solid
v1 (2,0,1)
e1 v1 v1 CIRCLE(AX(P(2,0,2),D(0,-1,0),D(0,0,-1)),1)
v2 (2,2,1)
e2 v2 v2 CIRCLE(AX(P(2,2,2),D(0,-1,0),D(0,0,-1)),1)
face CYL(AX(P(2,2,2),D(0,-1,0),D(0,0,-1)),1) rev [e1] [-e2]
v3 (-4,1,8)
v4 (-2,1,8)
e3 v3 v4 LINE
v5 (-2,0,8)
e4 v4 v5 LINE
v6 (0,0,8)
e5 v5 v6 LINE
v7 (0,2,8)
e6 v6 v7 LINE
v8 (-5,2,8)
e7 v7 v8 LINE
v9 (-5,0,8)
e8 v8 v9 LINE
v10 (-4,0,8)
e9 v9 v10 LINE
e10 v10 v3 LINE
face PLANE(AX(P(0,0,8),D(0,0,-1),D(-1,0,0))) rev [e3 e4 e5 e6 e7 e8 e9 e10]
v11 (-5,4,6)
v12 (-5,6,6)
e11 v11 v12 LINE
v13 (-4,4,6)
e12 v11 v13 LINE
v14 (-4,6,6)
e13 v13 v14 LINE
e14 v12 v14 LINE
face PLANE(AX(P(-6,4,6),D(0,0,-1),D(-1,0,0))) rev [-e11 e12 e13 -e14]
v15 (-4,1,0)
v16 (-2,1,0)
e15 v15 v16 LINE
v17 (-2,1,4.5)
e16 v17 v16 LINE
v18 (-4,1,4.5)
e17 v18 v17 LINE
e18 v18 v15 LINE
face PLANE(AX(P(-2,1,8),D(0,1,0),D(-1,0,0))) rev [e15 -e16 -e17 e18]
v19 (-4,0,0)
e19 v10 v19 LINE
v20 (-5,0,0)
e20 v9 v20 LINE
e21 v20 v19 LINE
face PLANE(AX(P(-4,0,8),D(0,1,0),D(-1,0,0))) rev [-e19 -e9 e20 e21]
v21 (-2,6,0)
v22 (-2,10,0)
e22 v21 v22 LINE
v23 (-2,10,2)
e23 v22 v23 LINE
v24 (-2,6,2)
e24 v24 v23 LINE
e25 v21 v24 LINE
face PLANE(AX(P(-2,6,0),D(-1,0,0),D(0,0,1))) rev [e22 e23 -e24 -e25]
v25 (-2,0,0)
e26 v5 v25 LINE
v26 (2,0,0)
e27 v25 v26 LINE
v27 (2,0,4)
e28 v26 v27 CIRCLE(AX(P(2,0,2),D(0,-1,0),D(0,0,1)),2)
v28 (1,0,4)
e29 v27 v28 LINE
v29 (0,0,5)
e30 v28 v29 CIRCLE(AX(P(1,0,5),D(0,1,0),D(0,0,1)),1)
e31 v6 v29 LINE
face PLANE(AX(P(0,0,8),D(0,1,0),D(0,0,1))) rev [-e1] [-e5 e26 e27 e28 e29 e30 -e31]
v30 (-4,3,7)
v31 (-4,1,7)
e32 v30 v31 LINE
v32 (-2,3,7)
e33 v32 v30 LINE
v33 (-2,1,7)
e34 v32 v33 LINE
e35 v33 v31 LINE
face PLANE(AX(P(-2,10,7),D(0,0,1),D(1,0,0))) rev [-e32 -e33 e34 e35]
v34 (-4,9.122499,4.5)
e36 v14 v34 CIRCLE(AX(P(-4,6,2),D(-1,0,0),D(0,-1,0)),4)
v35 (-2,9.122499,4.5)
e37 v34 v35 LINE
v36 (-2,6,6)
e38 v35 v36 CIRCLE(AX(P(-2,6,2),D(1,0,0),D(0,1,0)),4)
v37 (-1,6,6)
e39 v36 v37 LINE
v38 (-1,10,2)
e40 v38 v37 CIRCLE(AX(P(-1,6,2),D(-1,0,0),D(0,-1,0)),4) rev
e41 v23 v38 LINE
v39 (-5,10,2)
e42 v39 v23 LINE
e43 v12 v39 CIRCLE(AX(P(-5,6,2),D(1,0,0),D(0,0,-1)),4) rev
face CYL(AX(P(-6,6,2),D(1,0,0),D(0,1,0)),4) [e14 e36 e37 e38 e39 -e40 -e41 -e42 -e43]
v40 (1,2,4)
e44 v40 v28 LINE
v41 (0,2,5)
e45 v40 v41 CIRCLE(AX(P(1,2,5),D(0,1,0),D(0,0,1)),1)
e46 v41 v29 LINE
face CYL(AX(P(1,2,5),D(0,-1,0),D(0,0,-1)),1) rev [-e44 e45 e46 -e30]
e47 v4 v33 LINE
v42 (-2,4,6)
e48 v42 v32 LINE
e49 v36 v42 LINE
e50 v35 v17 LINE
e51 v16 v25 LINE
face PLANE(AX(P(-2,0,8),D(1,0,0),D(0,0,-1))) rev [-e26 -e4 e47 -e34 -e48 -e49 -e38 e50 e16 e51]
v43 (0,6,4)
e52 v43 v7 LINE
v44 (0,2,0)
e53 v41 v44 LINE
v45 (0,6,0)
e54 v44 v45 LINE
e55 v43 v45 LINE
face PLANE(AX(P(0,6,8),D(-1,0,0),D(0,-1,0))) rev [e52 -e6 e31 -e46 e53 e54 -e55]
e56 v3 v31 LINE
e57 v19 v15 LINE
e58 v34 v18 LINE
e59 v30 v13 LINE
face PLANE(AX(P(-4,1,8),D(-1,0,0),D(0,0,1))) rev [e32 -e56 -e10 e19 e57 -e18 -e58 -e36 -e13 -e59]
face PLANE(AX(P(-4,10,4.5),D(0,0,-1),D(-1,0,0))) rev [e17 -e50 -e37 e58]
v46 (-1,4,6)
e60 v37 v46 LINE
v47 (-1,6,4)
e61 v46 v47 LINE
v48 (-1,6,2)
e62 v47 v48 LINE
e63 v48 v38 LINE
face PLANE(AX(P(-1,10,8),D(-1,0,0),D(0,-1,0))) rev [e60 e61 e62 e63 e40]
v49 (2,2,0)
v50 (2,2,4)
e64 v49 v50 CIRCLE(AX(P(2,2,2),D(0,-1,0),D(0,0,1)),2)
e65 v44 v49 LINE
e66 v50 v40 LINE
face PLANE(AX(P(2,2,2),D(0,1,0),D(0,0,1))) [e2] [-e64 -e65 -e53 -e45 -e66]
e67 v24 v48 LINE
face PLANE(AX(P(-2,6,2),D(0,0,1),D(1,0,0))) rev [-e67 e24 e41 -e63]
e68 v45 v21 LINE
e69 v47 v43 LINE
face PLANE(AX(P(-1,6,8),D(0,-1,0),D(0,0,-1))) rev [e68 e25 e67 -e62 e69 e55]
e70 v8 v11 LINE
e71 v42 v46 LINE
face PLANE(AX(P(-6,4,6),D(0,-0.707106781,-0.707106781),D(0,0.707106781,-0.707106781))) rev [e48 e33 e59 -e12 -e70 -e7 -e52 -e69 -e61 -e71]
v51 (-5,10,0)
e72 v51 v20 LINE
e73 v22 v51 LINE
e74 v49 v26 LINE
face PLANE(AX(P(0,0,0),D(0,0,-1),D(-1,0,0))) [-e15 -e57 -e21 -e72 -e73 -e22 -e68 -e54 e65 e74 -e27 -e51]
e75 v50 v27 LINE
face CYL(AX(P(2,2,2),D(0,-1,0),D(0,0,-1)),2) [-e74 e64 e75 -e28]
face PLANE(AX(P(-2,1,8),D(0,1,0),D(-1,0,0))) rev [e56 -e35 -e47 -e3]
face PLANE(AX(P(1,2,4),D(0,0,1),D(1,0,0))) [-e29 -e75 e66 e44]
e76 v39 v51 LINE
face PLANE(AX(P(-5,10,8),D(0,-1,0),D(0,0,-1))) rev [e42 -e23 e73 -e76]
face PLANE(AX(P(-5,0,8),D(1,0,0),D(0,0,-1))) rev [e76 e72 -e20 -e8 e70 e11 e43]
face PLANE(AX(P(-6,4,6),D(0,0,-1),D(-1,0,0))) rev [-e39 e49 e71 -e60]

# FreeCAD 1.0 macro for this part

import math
import FreeCAD as App
import Part
import Sketcher
Q = App.Units.Quantity


def add_polygon(sketch, points):
    """Adds a closed chain of lines whose ends are joined by coincident constraints."""
    first, n = sketch.GeometryCount, len(points)
    for a, b in zip(points, points[1:] + points[:1]):
        sketch.addGeometry(Part.LineSegment(App.Vector(*a, 0), App.Vector(*b, 0)), False)
    for i in range(n):
        sketch.addConstraint(Sketcher.Constraint("Coincident", first + i, 2, first + (i + 1) % n, 1))

doc = App.newDocument("Part")
params = doc.addObject("Spreadsheet::Sheet", "Params")
for row, (alias, value) in enumerate([
    ("sketch1_width", "2 mm"),
    ("sketch1_width2", "1 mm"),
    ("sketch1_height", "6 mm"),
    ("pad1_length", "8 mm"),
    ("sketch2_diameter", "2 mm"),
    ("sketch2_radius", "2 mm"),
    ("sketch2_width", "2 mm"),
    ("pad2_length", "2 mm"),
    ("sketch3_width", "1 mm"),
    ("sketch3_height", "6 mm"),
    ("pocket1_length", "4 mm"),
    ("sketch4_radius", "4 mm"),
    ("sketch4_width", "8 mm"),
    ("sketch4_width2", "2 mm"),
    ("sketch4_height", "6 mm"),
    ("pocket2_length", "10 mm"),
    ("sketch5_width", "2 mm"),
    ("pocket3_length", "1 mm"),
    ("sketch6_width", "2 mm"),
    ("sketch6_height", "2.5 mm"),
], start=1):
    params.set(f"A{row}", alias)
    params.set(f"B{row}", "=" + value)
    params.setAlias(f"B{row}", alias)

body = doc.addObject("PartDesign::Body", "Body")

sketch1 = body.newObject("Sketcher::SketchObject", "Sketch")
sketch1.AttachmentSupport = (doc.getObject("XY_Plane"), [""])
sketch1.MapMode = "FlatFace"
add_polygon(sketch1, [(-2, 0), (0, 0), (0, 6), (-1, 6), (-1, 10), (-5, 10), (-5, 0), (-4, 0), (-4, 1), (-2, 1)])
sketch1.addConstraint([
    Sketcher.Constraint("Horizontal", 0),
    Sketcher.Constraint("Vertical", 1),
    Sketcher.Constraint("Horizontal", 2),
    Sketcher.Constraint("Vertical", 3),
    Sketcher.Constraint("Horizontal", 4),
    Sketcher.Constraint("Vertical", 5),
    Sketcher.Constraint("Horizontal", 6),
    Sketcher.Constraint("Vertical", 7),
    Sketcher.Constraint("Horizontal", 8),
    Sketcher.Constraint("Vertical", 9),
    Sketcher.Constraint("Coincident", 0, 2, -1, 1),
    Sketcher.Constraint("PointOnObject", 5, 2, -1),
    Sketcher.Constraint("Equal", 2, 6),
    Sketcher.Constraint("Equal", 0, 8),
    Sketcher.Constraint("Equal", 4, 3),
    Sketcher.Constraint("Equal", 6, 7),
    Sketcher.Constraint("DistanceX", 0, 1, 0, 2, Q("2 mm")),
    Sketcher.Constraint("DistanceX", 2, 2, 2, 1, Q("1 mm")),
    Sketcher.Constraint("DistanceY", 1, 1, 1, 2, Q("6 mm")),
])
sketch1.setExpression("Constraints[26]", "Params.sketch1_width")
sketch1.setExpression("Constraints[27]", "Params.sketch1_width2")
sketch1.setExpression("Constraints[28]", "Params.sketch1_height")
pad1 = body.newObject("PartDesign::Pad", "Pad")
pad1.Profile = sketch1
pad1.setExpression("Length", "Params.pad1_length")

sketch2 = body.newObject("Sketcher::SketchObject", "Sketch001")
sketch2.AttachmentSupport = (doc.getObject("XZ_Plane"), [""])
sketch2.MapMode = "FlatFace"
sketch2.addGeometry([
    Part.LineSegment(App.Vector(0, 0, 0), App.Vector(2, 0, 0)),
    Part.ArcOfCircle(Part.Circle(App.Vector(2, 2, 0), App.Vector(0, 0, 1), 2), math.radians(-90), math.radians(90)),
    Part.LineSegment(App.Vector(2, 4, 0), App.Vector(1, 4, 0)),
    Part.ArcOfCircle(Part.Circle(App.Vector(1, 5, 0), App.Vector(0, 0, 1), 1), math.radians(-180), math.radians(-90)),
    Part.LineSegment(App.Vector(0, 5, 0), App.Vector(0, 0, 0)),
    Part.Circle(App.Vector(2, 2, 0), App.Vector(0, 0, 1), 1),
], False)
sketch2.addConstraint([
    Sketcher.Constraint("Tangent", 0, 2, 1, 1),
    Sketcher.Constraint("Tangent", 1, 2, 2, 1),
    Sketcher.Constraint("Tangent", 2, 2, 3, 2),
    Sketcher.Constraint("Tangent", 3, 1, 4, 1),
    Sketcher.Constraint("Coincident", 4, 2, 0, 1),
    Sketcher.Constraint("Horizontal", 0),
    Sketcher.Constraint("Horizontal", 2),
    Sketcher.Constraint("Vertical", 4),
    Sketcher.Constraint("Coincident", 4, 2, -1, 1),
    Sketcher.Constraint("Coincident", 5, 3, 1, 3),
    Sketcher.Constraint("Equal", 3, 5),
    Sketcher.Constraint("Diameter", 5, Q("2 mm")),
    Sketcher.Constraint("Radius", 1, Q("2 mm")),
    Sketcher.Constraint("DistanceX", 0, 1, 0, 2, Q("2 mm")),
])
sketch2.setExpression("Constraints[11]", "Params.sketch2_diameter")
sketch2.setExpression("Constraints[12]", "Params.sketch2_radius")
sketch2.setExpression("Constraints[13]", "Params.sketch2_width")
pad2 = body.newObject("PartDesign::Pad", "Pad001")
pad2.Profile = sketch2
pad2.setExpression("Length", "Params.pad2_length")
pad2.Reversed = True

sketch3 = body.newObject("Sketcher::SketchObject", "Sketch002")
sketch3.AttachmentSupport = (doc.getObject("XZ_Plane"), [""])
sketch3.MapMode = "FlatFace"
sketch3.AttachmentOffset = App.Placement(App.Vector(0, 0, -10), App.Rotation())
add_polygon(sketch3, [(-2, 0), (-2, 2), (-1, 2), (-1, 8), (0, 8), (0, 0)])
sketch3.addConstraint([
    Sketcher.Constraint("Vertical", 0),
    Sketcher.Constraint("Horizontal", 1),
    Sketcher.Constraint("Vertical", 2),
    Sketcher.Constraint("Horizontal", 3),
    Sketcher.Constraint("Vertical", 4),
    Sketcher.Constraint("Horizontal", 5),
    Sketcher.Constraint("Coincident", 4, 2, -1, 1),
    Sketcher.Constraint("Equal", 1, 3),
    Sketcher.Constraint("Equal", 5, 0),
    Sketcher.Constraint("DistanceX", 1, 1, 1, 2, Q("1 mm")),
    Sketcher.Constraint("DistanceY", 2, 1, 2, 2, Q("6 mm")),
])
sketch3.setExpression("Constraints[15]", "Params.sketch3_width")
sketch3.setExpression("Constraints[16]", "Params.sketch3_height")
pocket1 = body.newObject("PartDesign::Pocket", "Pocket")
pocket1.Profile = sketch3
pocket1.setExpression("Length", "Params.pocket1_length")
pocket1.Reversed = True

sketch4 = body.newObject("Sketcher::SketchObject", "Sketch003")
sketch4.AttachmentSupport = (doc.getObject("YZ_Plane"), [""])
sketch4.MapMode = "FlatFace"
sketch4.AttachmentOffset = App.Placement(App.Vector(0, 0, -1), App.Rotation())
sketch4.addGeometry([
    Part.LineSegment(App.Vector(10, 2, 0), App.Vector(10, 8, 0)),
    Part.LineSegment(App.Vector(10, 8, 0), App.Vector(2, 8, 0)),
    Part.LineSegment(App.Vector(2, 8, 0), App.Vector(4, 6, 0)),
    Part.LineSegment(App.Vector(4, 6, 0), App.Vector(6, 6, 0)),
    Part.ArcOfCircle(Part.Circle(App.Vector(6, 2, 0), App.Vector(0, 0, 1), 4), math.radians(0), math.radians(90)),
], False)
sketch4.addConstraint([
    Sketcher.Constraint("Coincident", 0, 2, 1, 1),
    Sketcher.Constraint("Coincident", 1, 2, 2, 1),
    Sketcher.Constraint("Coincident", 2, 2, 3, 1),
    Sketcher.Constraint("Tangent", 3, 2, 4, 2),
    Sketcher.Constraint("Tangent", 4, 1, 0, 1),
    Sketcher.Constraint("Vertical", 0),
    Sketcher.Constraint("Horizontal", 1),
    Sketcher.Constraint("Horizontal", 3),
    Sketcher.Constraint("Radius", 4, Q("4 mm")),
    Sketcher.Constraint("DistanceX", 1, 2, 1, 1, Q("8 mm")),
    Sketcher.Constraint("DistanceX", 3, 1, 3, 2, Q("2 mm")),
    Sketcher.Constraint("DistanceY", 0, 1, 0, 2, Q("6 mm")),
    Sketcher.Constraint("DistanceX", -1, 1, 4, 3, Q("6 mm")),
    Sketcher.Constraint("DistanceY", -1, 1, 4, 3, Q("2 mm")),
])
sketch4.setExpression("Constraints[8]", "Params.sketch4_radius")
sketch4.setExpression("Constraints[9]", "Params.sketch4_width")
sketch4.setExpression("Constraints[10]", "Params.sketch4_width2")
sketch4.setExpression("Constraints[11]", "Params.sketch4_height")
pocket2 = body.newObject("PartDesign::Pocket", "Pocket001")
pocket2.Profile = sketch4
pocket2.setExpression("Length", "Params.pocket2_length")
pocket2.Midplane = True

sketch5 = body.newObject("Sketcher::SketchObject", "Sketch004")
sketch5.AttachmentSupport = (doc.getObject("YZ_Plane"), [""])
sketch5.MapMode = "FlatFace"
add_polygon(sketch5, [(4, 6), (6, 4), (6, 6)])
sketch5.addConstraint([
    Sketcher.Constraint("Vertical", 1),
    Sketcher.Constraint("Horizontal", 2),
    Sketcher.Constraint("Equal", 2, 1),
    Sketcher.Constraint("DistanceX", 2, 2, 2, 1, Q("2 mm")),
    Sketcher.Constraint("DistanceX", -1, 1, 0, 2, Q("6 mm")),
    Sketcher.Constraint("DistanceY", -1, 1, 0, 2, Q("4 mm")),
])
sketch5.setExpression("Constraints[6]", "Params.sketch5_width")
pocket3 = body.newObject("PartDesign::Pocket", "Pocket002")
pocket3.Profile = sketch5
pocket3.setExpression("Length", "Params.pocket3_length")

sketch6 = body.newObject("Sketcher::SketchObject", "Sketch005")
sketch6.AttachmentSupport = (doc.getObject("XZ_Plane"), [""])
sketch6.MapMode = "FlatFace"
sketch6.AttachmentOffset = App.Placement(App.Vector(0, 0, -1), App.Rotation())
add_polygon(sketch6, [(-4, 7), (-4, 4.5), (-2, 4.5), (-2, 7)])
sketch6.addConstraint([
    Sketcher.Constraint("Vertical", 0),
    Sketcher.Constraint("Horizontal", 1),
    Sketcher.Constraint("Vertical", 2),
    Sketcher.Constraint("Horizontal", 3),
    Sketcher.Constraint("DistanceX", 1, 1, 1, 2, Q("2 mm")),
    Sketcher.Constraint("DistanceY", 0, 2, 0, 1, Q("2.5 mm")),
    Sketcher.Constraint("DistanceX", 0, 2, -1, 1, Q("4 mm")),
    Sketcher.Constraint("DistanceY", -1, 1, 2, 2, Q("7 mm")),
])
sketch6.setExpression("Constraints[8]", "Params.sketch6_width")
sketch6.setExpression("Constraints[9]", "Params.sketch6_height")
pocket4 = body.newObject("PartDesign::Pocket", "Pocket003")
pocket4.Profile = sketch6
pocket4.Type = "ThroughAll"

doc.recompute()
